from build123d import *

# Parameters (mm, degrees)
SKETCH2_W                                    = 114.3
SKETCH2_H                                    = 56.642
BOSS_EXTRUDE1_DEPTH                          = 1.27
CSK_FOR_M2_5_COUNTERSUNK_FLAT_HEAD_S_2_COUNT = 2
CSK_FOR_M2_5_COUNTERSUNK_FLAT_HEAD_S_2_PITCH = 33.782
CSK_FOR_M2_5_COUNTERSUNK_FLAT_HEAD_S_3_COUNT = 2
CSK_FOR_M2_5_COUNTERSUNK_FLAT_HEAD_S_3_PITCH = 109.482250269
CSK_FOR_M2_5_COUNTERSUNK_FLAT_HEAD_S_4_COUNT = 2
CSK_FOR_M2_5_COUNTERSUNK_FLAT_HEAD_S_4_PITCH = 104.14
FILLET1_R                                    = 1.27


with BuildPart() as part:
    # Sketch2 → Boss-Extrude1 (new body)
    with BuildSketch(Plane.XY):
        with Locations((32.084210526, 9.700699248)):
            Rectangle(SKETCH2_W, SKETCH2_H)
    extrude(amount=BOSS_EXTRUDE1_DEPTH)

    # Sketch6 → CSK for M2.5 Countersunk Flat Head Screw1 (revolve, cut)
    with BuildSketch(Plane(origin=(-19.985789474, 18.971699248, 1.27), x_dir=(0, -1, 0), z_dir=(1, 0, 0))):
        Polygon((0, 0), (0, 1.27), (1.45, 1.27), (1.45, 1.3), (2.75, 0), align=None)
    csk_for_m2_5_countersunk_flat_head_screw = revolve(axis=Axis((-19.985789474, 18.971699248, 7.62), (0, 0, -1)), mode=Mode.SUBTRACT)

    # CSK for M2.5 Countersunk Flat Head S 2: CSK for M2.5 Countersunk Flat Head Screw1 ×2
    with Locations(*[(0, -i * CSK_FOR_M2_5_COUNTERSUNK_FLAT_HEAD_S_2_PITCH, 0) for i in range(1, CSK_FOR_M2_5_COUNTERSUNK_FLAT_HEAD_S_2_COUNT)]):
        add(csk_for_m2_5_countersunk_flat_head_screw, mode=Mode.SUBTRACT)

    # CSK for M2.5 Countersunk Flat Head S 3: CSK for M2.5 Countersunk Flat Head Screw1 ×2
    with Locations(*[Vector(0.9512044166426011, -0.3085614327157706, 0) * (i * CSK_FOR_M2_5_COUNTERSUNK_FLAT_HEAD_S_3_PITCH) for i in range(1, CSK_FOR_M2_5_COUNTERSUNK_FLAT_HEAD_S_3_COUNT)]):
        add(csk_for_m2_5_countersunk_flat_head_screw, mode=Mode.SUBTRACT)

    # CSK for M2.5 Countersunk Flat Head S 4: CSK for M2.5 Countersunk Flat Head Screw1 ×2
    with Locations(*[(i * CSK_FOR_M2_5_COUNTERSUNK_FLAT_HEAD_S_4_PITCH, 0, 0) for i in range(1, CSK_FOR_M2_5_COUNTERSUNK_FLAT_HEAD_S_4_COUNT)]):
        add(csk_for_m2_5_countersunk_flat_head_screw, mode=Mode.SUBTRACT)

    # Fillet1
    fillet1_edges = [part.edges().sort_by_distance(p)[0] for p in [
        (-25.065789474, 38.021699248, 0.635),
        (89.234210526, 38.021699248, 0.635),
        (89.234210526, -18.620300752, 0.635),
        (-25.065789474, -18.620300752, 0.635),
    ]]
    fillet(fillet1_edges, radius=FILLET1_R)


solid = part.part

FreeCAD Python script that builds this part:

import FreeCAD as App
import Part
import Sketcher
Q = App.Units.Quantity


def edges_at(feature, points):
    """Names of the edges that pass closest to the given points."""
    edges = feature.Shape.Edges
    near = lambda p: min(range(len(edges)), key=lambda i: edges[i].distToShape(Part.Vertex(*p))[0])
    return sorted({f"Edge{near(p) + 1}" for p in points})

doc = App.newDocument("Part")
body = doc.addObject("PartDesign::Body", "Body")

# Sketch on XY plane
sketch1 = body.newObject("Sketcher::SketchObject", "Sketch")
sketch1.AttachmentSupport = (doc.getObject("XY_Plane"), [""])
sketch1.MapMode = "FlatFace"
sketch1.addGeometry([
    Part.LineSegment(App.Vector(-25, 38, 0), App.Vector(-25, -19, 0)),
    Part.LineSegment(App.Vector(-25, -19, 0), App.Vector(89, -19, 0)),
    Part.LineSegment(App.Vector(89, -19, 0), App.Vector(89, 38, 0)),
    Part.LineSegment(App.Vector(89, 38, 0), App.Vector(-25, 38, 0)),
], False)
sketch1.addConstraint([
    Sketcher.Constraint("Coincident", 0, 2, 1, 1),
    Sketcher.Constraint("Coincident", 1, 2, 2, 1),
    Sketcher.Constraint("Coincident", 2, 2, 3, 1),
    Sketcher.Constraint("Coincident", 3, 2, 0, 1),
    Sketcher.Constraint("Vertical", 0),
    Sketcher.Constraint("Horizontal", 1),
    Sketcher.Constraint("Vertical", 2),
    Sketcher.Constraint("Horizontal", 3),
    Sketcher.Constraint("DistanceX", 1, 1, 1, 2, Q("4.5 in")),
    Sketcher.Constraint("DistanceY", 0, 2, 0, 1, Q("2.23 in")),
    Sketcher.Constraint("DistanceY", 0, 2, -1, 1, 18.620301),
    Sketcher.Constraint("DistanceX", 0, 2, -1, 1, 25.065789),
])
pad1 = body.newObject("PartDesign::Pad", "Pad")
pad1.Profile = sketch1
pad1.Length = Q("0.05 in")

# Sketch on YZ plane
sketch2 = body.newObject("Sketcher::SketchObject", "Sketch001")
sketch2.AttachmentSupport = (doc.getObject("YZ_Plane"), [""])
sketch2.MapMode = "FlatFace"
sketch2.AttachmentOffset = App.Placement(App.Vector(0, 0, -19.985789), App.Rotation())
sketch2.addGeometry([
    Part.LineSegment(App.Vector(18.972, 0, 0), App.Vector(18.972, 1.27, 0)),  # 0
    Part.LineSegment(App.Vector(18.972, 1.27, 0), App.Vector(16.222, 1.27, 0)),  # 1
    Part.LineSegment(App.Vector(16.222, 1.27, 0), App.Vector(17.522, -0.03, 0)),  # 2
    Part.LineSegment(App.Vector(17.522, -0.03, 0), App.Vector(17.522, 0, 0)),  # 3
    Part.LineSegment(App.Vector(17.522, 0, 0), App.Vector(18.972, 0, 0)),  # 4
], False)
sketch2.addGeometry(Part.LineSegment(App.Vector(18.972, 1.27, 0), App.Vector(18.972, -0.03, 0)), True)  # axis
sketch2.addConstraint([
    Sketcher.Constraint("Coincident", 0, 2, 1, 1),
    Sketcher.Constraint("Coincident", 1, 2, 2, 1),
    Sketcher.Constraint("Coincident", 2, 2, 3, 1),
    Sketcher.Constraint("Coincident", 3, 2, 4, 1),
    Sketcher.Constraint("Coincident", 4, 2, 0, 1),
    Sketcher.Constraint("Vertical", 0),
    Sketcher.Constraint("Horizontal", 1),
    Sketcher.Constraint("Vertical", 3),
    Sketcher.Constraint("Horizontal", 4),
    Sketcher.Constraint("Vertical", 5),
    Sketcher.Constraint("Coincident", 5, 1, 0, 2),
    Sketcher.Constraint("PointOnObject", 3, 2, -1),
    Sketcher.Constraint("Horizontal", 2, 2, 5, 2),
    Sketcher.Constraint("Angle", 2, Q("-45 deg")),
    Sketcher.Constraint("DistanceY", 0, 1, 0, 2, Q("0.05 in")),
    Sketcher.Constraint("DistanceX", 1, 2, 1, 1, 2.75),
    Sketcher.Constraint("DistanceX", 4, 1, 4, 2, 1.45),
    Sketcher.Constraint("DistanceX", -1, 1, 0, 2, 18.971699),
])
groove = body.newObject("PartDesign::Groove", "Groove")
groove.Profile = sketch2
groove.ReferenceAxis = (sketch2, ["Axis0"])
groove.Angle = 360
doc.recompute()

linearpattern = body.newObject("PartDesign::LinearPattern", "LinearPattern")
linearpattern.Originals = [groove]
linearpattern.Direction = (doc.getObject("Y_Axis"), [""])
linearpattern.Mode = "offset"
linearpattern.Offset = Q("1.33 in")
linearpattern.Occurrences = 2
linearpattern.Reversed = True
body.Tip = linearpattern
doc.recompute()

datumline = body.newObject("PartDesign::Line", "DatumLine")
datumline.Placement = App.Placement(App.Vector(0, 0, 0), App.Rotation(App.Vector(0, 0, 1), App.Vector(0.951204417, -0.308561433, 0)))
linearpattern2 = body.newObject("PartDesign::LinearPattern", "LinearPattern001")
linearpattern2.Originals = [groove]
linearpattern2.Direction = (datumline, [""])
linearpattern2.Mode = "offset"
linearpattern2.Offset = 109.48225
linearpattern2.Occurrences = 2
body.Tip = linearpattern2
doc.recompute()

linearpattern3 = body.newObject("PartDesign::LinearPattern", "LinearPattern002")
linearpattern3.Originals = [groove]
linearpattern3.Direction = (doc.getObject("X_Axis"), [""])
linearpattern3.Mode = "offset"
linearpattern3.Offset = Q("4.1 in")
linearpattern3.Occurrences = 2
body.Tip = linearpattern3
doc.recompute()

fillet = body.newObject("PartDesign::Fillet", "Fillet")
fillet.Base = (linearpattern3, edges_at(linearpattern3, [
    (-25.066, 38.022, 0.635),
    (89.234, 38.022, 0.635),
    (89.234, -18.62, 0.635),
    (-25.066, -18.62, 0.635),
]))
fillet.Radius = Q("0.05 in")

doc.recompute()
